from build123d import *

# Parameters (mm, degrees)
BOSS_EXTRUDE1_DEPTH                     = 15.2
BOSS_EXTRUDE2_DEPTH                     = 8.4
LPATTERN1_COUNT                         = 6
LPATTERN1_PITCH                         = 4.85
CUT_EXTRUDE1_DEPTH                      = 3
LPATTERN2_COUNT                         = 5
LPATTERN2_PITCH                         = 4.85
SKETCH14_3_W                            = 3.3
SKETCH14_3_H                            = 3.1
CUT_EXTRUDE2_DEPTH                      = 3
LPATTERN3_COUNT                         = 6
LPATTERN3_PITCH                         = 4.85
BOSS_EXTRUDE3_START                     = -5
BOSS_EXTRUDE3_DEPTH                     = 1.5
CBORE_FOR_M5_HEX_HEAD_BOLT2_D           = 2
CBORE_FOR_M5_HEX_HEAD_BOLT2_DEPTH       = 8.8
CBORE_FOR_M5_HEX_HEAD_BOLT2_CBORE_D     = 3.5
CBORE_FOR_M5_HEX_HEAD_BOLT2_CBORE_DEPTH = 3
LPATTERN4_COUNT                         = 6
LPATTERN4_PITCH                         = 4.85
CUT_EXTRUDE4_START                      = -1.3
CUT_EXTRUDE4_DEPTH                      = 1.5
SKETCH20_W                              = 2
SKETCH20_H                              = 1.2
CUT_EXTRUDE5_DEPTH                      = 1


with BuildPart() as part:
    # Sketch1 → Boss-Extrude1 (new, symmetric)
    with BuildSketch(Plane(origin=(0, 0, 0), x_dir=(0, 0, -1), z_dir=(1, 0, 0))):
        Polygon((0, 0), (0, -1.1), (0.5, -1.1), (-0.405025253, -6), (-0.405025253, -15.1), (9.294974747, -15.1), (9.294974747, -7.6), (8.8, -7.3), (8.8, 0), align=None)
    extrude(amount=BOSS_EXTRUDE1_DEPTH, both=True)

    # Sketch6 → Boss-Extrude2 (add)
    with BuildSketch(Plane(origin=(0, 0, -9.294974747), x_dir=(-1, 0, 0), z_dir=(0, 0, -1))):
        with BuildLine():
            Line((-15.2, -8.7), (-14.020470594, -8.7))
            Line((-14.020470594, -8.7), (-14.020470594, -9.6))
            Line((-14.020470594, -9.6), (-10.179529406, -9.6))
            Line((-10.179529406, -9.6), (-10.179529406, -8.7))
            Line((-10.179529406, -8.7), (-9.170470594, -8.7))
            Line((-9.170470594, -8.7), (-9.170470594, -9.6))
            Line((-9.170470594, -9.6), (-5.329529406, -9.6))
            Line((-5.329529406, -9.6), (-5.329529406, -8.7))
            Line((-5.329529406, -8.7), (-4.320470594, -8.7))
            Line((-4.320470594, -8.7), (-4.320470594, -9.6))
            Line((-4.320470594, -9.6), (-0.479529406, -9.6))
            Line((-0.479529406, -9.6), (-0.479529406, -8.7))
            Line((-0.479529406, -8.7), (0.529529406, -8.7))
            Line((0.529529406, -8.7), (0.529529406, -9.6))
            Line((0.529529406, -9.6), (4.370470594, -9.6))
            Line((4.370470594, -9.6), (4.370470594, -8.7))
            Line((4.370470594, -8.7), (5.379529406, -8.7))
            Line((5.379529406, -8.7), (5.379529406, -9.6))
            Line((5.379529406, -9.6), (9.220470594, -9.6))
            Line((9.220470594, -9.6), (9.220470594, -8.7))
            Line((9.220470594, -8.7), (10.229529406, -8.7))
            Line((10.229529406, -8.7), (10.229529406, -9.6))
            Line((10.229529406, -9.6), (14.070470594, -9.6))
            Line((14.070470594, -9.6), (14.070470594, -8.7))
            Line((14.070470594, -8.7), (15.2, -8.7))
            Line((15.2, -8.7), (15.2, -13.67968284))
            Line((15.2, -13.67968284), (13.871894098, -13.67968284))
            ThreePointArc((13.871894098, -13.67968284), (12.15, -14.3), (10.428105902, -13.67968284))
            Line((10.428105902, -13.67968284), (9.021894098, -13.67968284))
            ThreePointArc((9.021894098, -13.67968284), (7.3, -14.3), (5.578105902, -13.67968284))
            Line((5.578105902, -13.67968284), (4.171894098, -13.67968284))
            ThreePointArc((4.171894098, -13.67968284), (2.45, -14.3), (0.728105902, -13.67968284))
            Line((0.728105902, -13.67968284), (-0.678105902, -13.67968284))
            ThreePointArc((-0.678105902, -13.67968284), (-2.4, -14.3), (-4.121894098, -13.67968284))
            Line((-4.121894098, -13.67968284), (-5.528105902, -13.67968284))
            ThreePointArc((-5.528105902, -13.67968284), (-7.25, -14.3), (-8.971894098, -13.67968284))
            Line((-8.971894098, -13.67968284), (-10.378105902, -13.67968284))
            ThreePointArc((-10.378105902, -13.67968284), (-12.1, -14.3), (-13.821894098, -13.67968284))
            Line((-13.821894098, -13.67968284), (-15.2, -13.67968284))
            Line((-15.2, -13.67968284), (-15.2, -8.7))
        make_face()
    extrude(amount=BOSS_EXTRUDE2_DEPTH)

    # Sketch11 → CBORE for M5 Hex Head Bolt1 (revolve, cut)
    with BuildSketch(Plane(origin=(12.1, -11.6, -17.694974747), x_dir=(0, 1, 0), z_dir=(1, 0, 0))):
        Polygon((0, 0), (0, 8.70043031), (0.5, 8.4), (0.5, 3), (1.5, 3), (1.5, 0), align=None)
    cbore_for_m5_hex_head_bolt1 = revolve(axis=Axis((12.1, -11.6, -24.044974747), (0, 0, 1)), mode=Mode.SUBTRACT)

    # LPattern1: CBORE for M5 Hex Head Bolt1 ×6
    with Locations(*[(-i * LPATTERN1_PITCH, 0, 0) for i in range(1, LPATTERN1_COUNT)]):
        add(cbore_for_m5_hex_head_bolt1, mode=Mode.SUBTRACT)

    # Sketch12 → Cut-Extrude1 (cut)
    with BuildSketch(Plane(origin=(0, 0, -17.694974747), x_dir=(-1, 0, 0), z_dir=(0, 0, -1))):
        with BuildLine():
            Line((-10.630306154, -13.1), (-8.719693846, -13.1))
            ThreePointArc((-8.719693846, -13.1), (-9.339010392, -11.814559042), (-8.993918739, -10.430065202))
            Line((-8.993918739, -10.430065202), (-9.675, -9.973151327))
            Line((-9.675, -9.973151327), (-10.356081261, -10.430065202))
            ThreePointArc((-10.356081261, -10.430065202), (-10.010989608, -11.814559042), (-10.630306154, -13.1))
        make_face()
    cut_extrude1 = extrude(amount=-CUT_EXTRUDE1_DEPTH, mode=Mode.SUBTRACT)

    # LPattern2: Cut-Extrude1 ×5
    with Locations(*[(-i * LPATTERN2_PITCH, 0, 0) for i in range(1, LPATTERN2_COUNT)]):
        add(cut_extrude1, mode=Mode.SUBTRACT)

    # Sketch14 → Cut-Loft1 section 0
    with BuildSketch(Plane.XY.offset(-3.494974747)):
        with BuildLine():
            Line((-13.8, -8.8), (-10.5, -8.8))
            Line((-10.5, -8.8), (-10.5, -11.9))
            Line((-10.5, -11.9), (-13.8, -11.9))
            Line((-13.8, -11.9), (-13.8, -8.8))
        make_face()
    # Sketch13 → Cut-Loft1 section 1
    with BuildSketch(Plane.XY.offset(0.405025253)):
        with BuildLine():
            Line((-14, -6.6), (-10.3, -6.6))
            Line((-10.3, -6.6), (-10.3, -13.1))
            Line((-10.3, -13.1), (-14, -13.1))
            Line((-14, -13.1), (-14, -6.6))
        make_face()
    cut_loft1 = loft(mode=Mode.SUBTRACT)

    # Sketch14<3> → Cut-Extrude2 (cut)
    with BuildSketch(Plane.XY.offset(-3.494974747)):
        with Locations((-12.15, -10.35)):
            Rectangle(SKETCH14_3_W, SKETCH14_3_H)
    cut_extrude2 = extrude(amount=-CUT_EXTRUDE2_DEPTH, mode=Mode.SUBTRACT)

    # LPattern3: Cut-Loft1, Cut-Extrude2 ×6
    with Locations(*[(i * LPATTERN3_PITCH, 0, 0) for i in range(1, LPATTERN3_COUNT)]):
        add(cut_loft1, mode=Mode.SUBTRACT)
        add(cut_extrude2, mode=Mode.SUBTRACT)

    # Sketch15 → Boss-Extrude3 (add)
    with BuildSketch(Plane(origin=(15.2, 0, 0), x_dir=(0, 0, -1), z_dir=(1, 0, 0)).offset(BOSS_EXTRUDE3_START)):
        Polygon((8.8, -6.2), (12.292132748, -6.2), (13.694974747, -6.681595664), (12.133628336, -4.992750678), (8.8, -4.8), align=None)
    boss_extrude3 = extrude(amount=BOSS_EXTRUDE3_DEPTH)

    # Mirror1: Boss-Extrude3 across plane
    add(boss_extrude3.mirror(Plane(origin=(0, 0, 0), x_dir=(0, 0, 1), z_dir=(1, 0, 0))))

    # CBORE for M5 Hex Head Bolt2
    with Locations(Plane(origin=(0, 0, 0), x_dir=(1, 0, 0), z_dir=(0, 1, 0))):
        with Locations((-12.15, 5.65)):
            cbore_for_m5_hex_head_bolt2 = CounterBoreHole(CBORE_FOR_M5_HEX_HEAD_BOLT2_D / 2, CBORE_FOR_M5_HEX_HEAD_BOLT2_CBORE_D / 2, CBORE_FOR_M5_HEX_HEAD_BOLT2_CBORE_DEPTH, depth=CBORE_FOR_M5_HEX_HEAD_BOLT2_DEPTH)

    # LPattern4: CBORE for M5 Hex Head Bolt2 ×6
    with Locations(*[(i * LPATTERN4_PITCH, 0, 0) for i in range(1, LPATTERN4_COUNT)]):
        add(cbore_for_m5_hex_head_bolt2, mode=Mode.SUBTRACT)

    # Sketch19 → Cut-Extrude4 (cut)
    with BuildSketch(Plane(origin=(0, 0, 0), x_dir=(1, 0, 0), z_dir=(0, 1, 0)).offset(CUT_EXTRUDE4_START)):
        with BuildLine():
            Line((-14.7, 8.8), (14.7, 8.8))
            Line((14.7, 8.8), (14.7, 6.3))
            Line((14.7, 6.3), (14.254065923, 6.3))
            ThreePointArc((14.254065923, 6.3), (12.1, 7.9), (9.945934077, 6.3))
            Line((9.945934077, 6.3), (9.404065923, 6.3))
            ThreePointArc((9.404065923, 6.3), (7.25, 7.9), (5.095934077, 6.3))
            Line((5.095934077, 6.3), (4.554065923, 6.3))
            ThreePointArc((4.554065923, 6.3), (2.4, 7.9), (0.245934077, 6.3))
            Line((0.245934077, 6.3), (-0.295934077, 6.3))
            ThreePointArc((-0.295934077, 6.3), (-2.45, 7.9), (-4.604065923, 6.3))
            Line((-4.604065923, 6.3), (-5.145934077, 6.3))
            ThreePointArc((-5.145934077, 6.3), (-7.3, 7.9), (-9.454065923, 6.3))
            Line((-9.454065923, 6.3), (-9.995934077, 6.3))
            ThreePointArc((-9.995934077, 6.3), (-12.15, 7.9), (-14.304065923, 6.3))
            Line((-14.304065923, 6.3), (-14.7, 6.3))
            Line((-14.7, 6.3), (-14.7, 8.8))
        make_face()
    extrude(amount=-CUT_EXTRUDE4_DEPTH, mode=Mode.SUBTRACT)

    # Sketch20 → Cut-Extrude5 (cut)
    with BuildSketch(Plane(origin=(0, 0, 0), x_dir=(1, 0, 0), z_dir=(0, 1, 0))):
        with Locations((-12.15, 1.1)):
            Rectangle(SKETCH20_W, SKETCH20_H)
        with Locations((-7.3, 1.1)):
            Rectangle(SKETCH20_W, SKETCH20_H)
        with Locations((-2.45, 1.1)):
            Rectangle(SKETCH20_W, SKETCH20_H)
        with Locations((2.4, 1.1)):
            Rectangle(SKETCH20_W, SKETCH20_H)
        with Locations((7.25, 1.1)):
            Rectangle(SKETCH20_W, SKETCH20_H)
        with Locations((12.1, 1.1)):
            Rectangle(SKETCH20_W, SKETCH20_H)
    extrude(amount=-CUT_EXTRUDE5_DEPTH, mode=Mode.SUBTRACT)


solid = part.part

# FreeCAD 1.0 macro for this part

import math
import FreeCAD as App
import Part
import Sketcher

V = App.Vector
Q = App.Units.Quantity

doc = App.newDocument("Part")
body = doc.addObject("PartDesign::Body", "Body")

# Sketch on YZ plane
sketch1 = doc.addObject("Sketcher::SketchObject", "Sketch")
body.addObject(sketch1)
sketch1.AttachmentSupport = (doc.YZ_Plane, [""])
sketch1.MapMode = "FlatFace"
sketch1.addGeometry([
    Part.LineSegment(V(0, 0, 0), V(-1.1, 0, 0)),  # 0
    Part.LineSegment(V(-1.1, 0, 0), V(-1.1, -0.5, 0)),  # 1
    Part.LineSegment(V(-1.1, -0.5, 0), V(-6, 0.4, 0)),  # 2
    Part.LineSegment(V(-6, 0.4, 0), V(-15.1, 0.4, 0)),  # 3
    Part.LineSegment(V(-15.1, 0.4, 0), V(-15.1, -9.3, 0)),  # 4
    Part.LineSegment(V(-15.1, -9.3, 0), V(-7.6, -9.3, 0)),  # 5
    Part.LineSegment(V(-7.6, -9.3, 0), V(-7.3, -8.8, 0)),  # 6
    Part.LineSegment(V(-7.3, -8.8, 0), V(0, -8.8, 0)),  # 7
    Part.LineSegment(V(0, -8.8, 0), V(0, 0, 0)),  # 8
], False)
sketch1.addConstraint([
    Sketcher.Constraint("Coincident", 0, 2, 1, 1),
    Sketcher.Constraint("Coincident", 1, 2, 2, 1),
    Sketcher.Constraint("Coincident", 2, 2, 3, 1),
    Sketcher.Constraint("Coincident", 3, 2, 4, 1),
    Sketcher.Constraint("Coincident", 4, 2, 5, 1),
    Sketcher.Constraint("Coincident", 5, 2, 6, 1),
    Sketcher.Constraint("Coincident", 6, 2, 7, 1),
    Sketcher.Constraint("Coincident", 7, 2, 8, 1),
    Sketcher.Constraint("Coincident", 8, 2, 0, 1),
    Sketcher.Constraint("Horizontal", 0),
    Sketcher.Constraint("Vertical", 1),
    Sketcher.Constraint("Horizontal", 3),
    Sketcher.Constraint("Vertical", 4),
    Sketcher.Constraint("Horizontal", 5),
    Sketcher.Constraint("Horizontal", 7),
    Sketcher.Constraint("Vertical", 8),
    Sketcher.Constraint("Coincident", 8, 2, -1, 1),
    Sketcher.Constraint("DistanceX", 0, 2, 0, 1, 1.1),
    Sketcher.Constraint("DistanceX", 3, 2, 3, 1, 9.1),
    Sketcher.Constraint("DistanceX", 5, 1, 5, 2, 7.5),
    Sketcher.Constraint("DistanceX", 7, 1, 7, 2, 7.3),
    Sketcher.Constraint("DistanceY", 1, 2, 1, 1, 0.5),
    Sketcher.Constraint("DistanceY", 4, 2, 4, 1, 9.7),
    Sketcher.Constraint("DistanceY", 8, 1, 8, 2, 8.8),
    Sketcher.Constraint("DistanceX", 2, 2, -1, 1, 6.0),
    Sketcher.Constraint("Distance", 6, 0.578792),
])
pad1 = doc.addObject("PartDesign::Pad", "Pad")
body.addObject(pad1)
pad1.Profile = sketch1
pad1.Length = 30.4
pad1.Midplane = True

# Sketch on XY plane
sketch2 = doc.addObject("Sketcher::SketchObject", "Sketch001")
body.addObject(sketch2)
sketch2.AttachmentSupport = (doc.XY_Plane, [""])
sketch2.MapMode = "FlatFace"
sketch2.AttachmentOffset = App.Placement(V(0, 0, -9.294975), App.Rotation())
sketch2.addGeometry([
    Part.LineSegment(V(14, -8.7, 0), V(15.2, -8.7, 0)),  # 0
    Part.LineSegment(V(15.2, -8.7, 0), V(15.2, -13.7, 0)),  # 1
    Part.LineSegment(V(15.2, -13.7, 0), V(13.8, -13.7, 0)),  # 2
    Part.ArcOfCircle(Part.Circle(V(12.1, -11.6, 0), V(0, 0, 1), 2.7), math.radians(-130), math.radians(-50)),  # 3
    Part.LineSegment(V(10.4, -13.7, 0), V(9, -13.7, 0)),  # 4
    Part.ArcOfCircle(Part.Circle(V(7.2, -11.6, 0), V(0, 0, 1), 2.7), math.radians(-130), math.radians(-50)),  # 5
    Part.LineSegment(V(5.5, -13.7, 0), V(4.1, -13.7, 0)),  # 6
    Part.ArcOfCircle(Part.Circle(V(2.4, -11.6, 0), V(0, 0, 1), 2.7), math.radians(-130), math.radians(-50)),  # 7
    Part.LineSegment(V(0.7, -13.7, 0), V(-0.7, -13.7, 0)),  # 8
    Part.ArcOfCircle(Part.Circle(V(-2.5, -11.6, 0), V(0, 0, 1), 2.7), math.radians(-130), math.radians(-50)),  # 9
    Part.LineSegment(V(-4.2, -13.7, 0), V(-5.6, -13.7, 0)),  # 10
    Part.ArcOfCircle(Part.Circle(V(-7.3, -11.6, 0), V(0, 0, 1), 2.7), math.radians(-130), math.radians(-50)),  # 11
    Part.LineSegment(V(-9, -13.7, 0), V(-10.4, -13.7, 0)),  # 12
    Part.ArcOfCircle(Part.Circle(V(-12.2, -11.6, 0), V(0, 0, 1), 2.7), math.radians(-130), math.radians(-50)),  # 13
    Part.LineSegment(V(-13.9, -13.7, 0), V(-15.2, -13.7, 0)),  # 14
    Part.LineSegment(V(-15.2, -13.7, 0), V(-15.2, -8.7, 0)),  # 15
    Part.LineSegment(V(-15.2, -8.7, 0), V(-14.1, -8.7, 0)),  # 16
    Part.LineSegment(V(-14.1, -8.7, 0), V(-14.1, -9.6, 0)),  # 17
    Part.LineSegment(V(-14.1, -9.6, 0), V(-10.2, -9.6, 0)),  # 18
    Part.LineSegment(V(-10.2, -9.6, 0), V(-10.2, -8.7, 0)),  # 19
    Part.LineSegment(V(-10.2, -8.7, 0), V(-9.2, -8.7, 0)),  # 20
    Part.LineSegment(V(-9.2, -8.7, 0), V(-9.2, -9.6, 0)),  # 21
    Part.LineSegment(V(-9.2, -9.6, 0), V(-5.4, -9.6, 0)),  # 22
    Part.LineSegment(V(-5.4, -9.6, 0), V(-5.4, -8.7, 0)),  # 23
    Part.LineSegment(V(-5.4, -8.7, 0), V(-4.4, -8.7, 0)),  # 24
    Part.LineSegment(V(-4.4, -8.7, 0), V(-4.4, -9.6, 0)),  # 25
    Part.LineSegment(V(-4.4, -9.6, 0), V(-0.5, -9.6, 0)),  # 26
    Part.LineSegment(V(-0.5, -9.6, 0), V(-0.5, -8.7, 0)),  # 27
    Part.LineSegment(V(-0.5, -8.7, 0), V(0.5, -8.7, 0)),  # 28
    Part.LineSegment(V(0.5, -8.7, 0), V(0.5, -9.6, 0)),  # 29
    Part.LineSegment(V(0.5, -9.6, 0), V(4.3, -9.6, 0)),  # 30
    Part.LineSegment(V(4.3, -9.6, 0), V(4.3, -8.7, 0)),  # 31
    Part.LineSegment(V(4.3, -8.7, 0), V(5.3, -8.7, 0)),  # 32
    Part.LineSegment(V(5.3, -8.7, 0), V(5.3, -9.6, 0)),  # 33
    Part.LineSegment(V(5.3, -9.6, 0), V(9.2, -9.6, 0)),  # 34
    Part.LineSegment(V(9.2, -9.6, 0), V(9.2, -8.7, 0)),  # 35
    Part.LineSegment(V(9.2, -8.7, 0), V(10.2, -8.7, 0)),  # 36
    Part.LineSegment(V(10.2, -8.7, 0), V(10.2, -9.6, 0)),  # 37
    Part.LineSegment(V(10.2, -9.6, 0), V(14, -9.6, 0)),  # 38
    Part.LineSegment(V(14, -9.6, 0), V(14, -8.7, 0)),  # 39
], False)
sketch2.addConstraint([
    Sketcher.Constraint("Coincident", 0, 2, 1, 1),
    Sketcher.Constraint("Coincident", 1, 2, 2, 1),
    Sketcher.Constraint("Coincident", 2, 2, 3, 2),
    Sketcher.Constraint("Coincident", 3, 1, 4, 1),
    Sketcher.Constraint("Coincident", 4, 2, 5, 2),
    Sketcher.Constraint("Coincident", 5, 1, 6, 1),
    Sketcher.Constraint("Coincident", 6, 2, 7, 2),
    Sketcher.Constraint("Coincident", 7, 1, 8, 1),
    Sketcher.Constraint("Coincident", 8, 2, 9, 2),
    Sketcher.Constraint("Coincident", 9, 1, 10, 1),
    Sketcher.Constraint("Coincident", 10, 2, 11, 2),
    Sketcher.Constraint("Coincident", 11, 1, 12, 1),
    Sketcher.Constraint("Coincident", 12, 2, 13, 2),
    Sketcher.Constraint("Coincident", 13, 1, 14, 1),
    Sketcher.Constraint("Coincident", 14, 2, 15, 1),
    Sketcher.Constraint("Coincident", 15, 2, 16, 1),
    Sketcher.Constraint("Coincident", 16, 2, 17, 1),
    Sketcher.Constraint("Coincident", 17, 2, 18, 1),
    Sketcher.Constraint("Coincident", 18, 2, 19, 1),
    Sketcher.Constraint("Coincident", 19, 2, 20, 1),
    Sketcher.Constraint("Coincident", 20, 2, 21, 1),
    Sketcher.Constraint("Coincident", 21, 2, 22, 1),
    Sketcher.Constraint("Coincident", 22, 2, 23, 1),
    Sketcher.Constraint("Coincident", 23, 2, 24, 1),
    Sketcher.Constraint("Coincident", 24, 2, 25, 1),
    Sketcher.Constraint("Coincident", 25, 2, 26, 1),
    Sketcher.Constraint("Coincident", 26, 2, 27, 1),
    Sketcher.Constraint("Coincident", 27, 2, 28, 1),
    Sketcher.Constraint("Coincident", 28, 2, 29, 1),
    Sketcher.Constraint("Coincident", 29, 2, 30, 1),
    Sketcher.Constraint("Coincident", 30, 2, 31, 1),
    Sketcher.Constraint("Coincident", 31, 2, 32, 1),
    Sketcher.Constraint("Coincident", 32, 2, 33, 1),
    Sketcher.Constraint("Coincident", 33, 2, 34, 1),
    Sketcher.Constraint("Coincident", 34, 2, 35, 1),
    Sketcher.Constraint("Coincident", 35, 2, 36, 1),
    Sketcher.Constraint("Coincident", 36, 2, 37, 1),
    Sketcher.Constraint("Coincident", 37, 2, 38, 1),
    Sketcher.Constraint("Coincident", 38, 2, 39, 1),
    Sketcher.Constraint("Coincident", 39, 2, 0, 1),
    Sketcher.Constraint("Horizontal", 0),
    Sketcher.Constraint("Vertical", 1),
    Sketcher.Constraint("Horizontal", 2),
    Sketcher.Constraint("Horizontal", 4),
    Sketcher.Constraint("Horizontal", 6),
    Sketcher.Constraint("Horizontal", 8),
    Sketcher.Constraint("Horizontal", 10),
    Sketcher.Constraint("Horizontal", 12),
    Sketcher.Constraint("Horizontal", 14),
    Sketcher.Constraint("Vertical", 15),
    Sketcher.Constraint("Horizontal", 16),
    Sketcher.Constraint("Vertical", 17),
    Sketcher.Constraint("Horizontal", 18),
    Sketcher.Constraint("Vertical", 19),
    Sketcher.Constraint("Horizontal", 20),
    Sketcher.Constraint("Vertical", 21),
    Sketcher.Constraint("Horizontal", 22),
    Sketcher.Constraint("Vertical", 23),
    Sketcher.Constraint("Horizontal", 24),
    Sketcher.Constraint("Vertical", 25),
    Sketcher.Constraint("Horizontal", 26),
    Sketcher.Constraint("Vertical", 27),
    Sketcher.Constraint("Horizontal", 28),
    Sketcher.Constraint("Vertical", 29),
    Sketcher.Constraint("Horizontal", 30),
    Sketcher.Constraint("Vertical", 31),
    Sketcher.Constraint("Horizontal", 32),
    Sketcher.Constraint("Vertical", 33),
    Sketcher.Constraint("Horizontal", 34),
    Sketcher.Constraint("Vertical", 35),
    Sketcher.Constraint("Horizontal", 36),
    Sketcher.Constraint("Vertical", 37),
    Sketcher.Constraint("Horizontal", 38),
    Sketcher.Constraint("Vertical", 39),
    Sketcher.Constraint("Equal", 3, 5),
    Sketcher.Constraint("Equal", 5, 7),
    Sketcher.Constraint("Equal", 7, 9),
    Sketcher.Constraint("Equal", 9, 11),
    Sketcher.Constraint("Equal", 11, 13),
    Sketcher.Constraint("Symmetric", 1, 2, 14, 2, -2),
    Sketcher.Constraint("Horizontal", 3, 3, 5, 3),
    Sketcher.Constraint("Horizontal", 5, 3, 7, 3),
    Sketcher.Constraint("Horizontal", 7, 3, 9, 3),
    Sketcher.Constraint("Horizontal", 9, 3, 11, 3),
    Sketcher.Constraint("Horizontal", 11, 3, 13, 3),
    Sketcher.Constraint("Horizontal", 2, 2, 3, 1),
    Sketcher.Constraint("Horizontal", 4, 2, 5, 1),
    Sketcher.Constraint("Horizontal", 6, 2, 7, 1),
    Sketcher.Constraint("Horizontal", 8, 2, 9, 1),
    Sketcher.Constraint("Horizontal", 10, 2, 11, 1),
    Sketcher.Constraint("Horizontal", 0, 2, 15, 2),
    Sketcher.Constraint("Horizontal", 16, 2, 19, 2),
    Sketcher.Constraint("Horizontal", 18, 2, 21, 2),
    Sketcher.Constraint("Horizontal", 20, 2, 23, 2),
    Sketcher.Constraint("Horizontal", 22, 2, 25, 2),
    Sketcher.Constraint("Horizontal", 24, 2, 27, 2),
    Sketcher.Constraint("Horizontal", 26, 2, 29, 2),
    Sketcher.Constraint("Horizontal", 28, 2, 31, 2),
    Sketcher.Constraint("Horizontal", 30, 2, 33, 2),
    Sketcher.Constraint("Horizontal", 32, 2, 35, 2),
    Sketcher.Constraint("Horizontal", 34, 2, 37, 2),
    Sketcher.Constraint("Equal", 4, 6),
    Sketcher.Constraint("Equal", 6, 8),
    Sketcher.Constraint("Equal", 8, 10),
    Sketcher.Constraint("Equal", 10, 12),
    Sketcher.Constraint("Equal", 18, 22),
    Sketcher.Constraint("Equal", 20, 24),
    Sketcher.Constraint("Equal", 22, 26),
    Sketcher.Constraint("Equal", 24, 28),
    Sketcher.Constraint("Equal", 26, 30),
    Sketcher.Constraint("Equal", 28, 32),
    Sketcher.Constraint("Equal", 30, 34),
    Sketcher.Constraint("Equal", 32, 36),
    Sketcher.Constraint("Equal", 34, 38),
    Sketcher.Constraint("Radius", 3, 2.7),
    Sketcher.Constraint("DistanceY", 17, 2, 17, 1, 0.9),
    Sketcher.Constraint("DistanceY", 13, 3, 17, 2, 2.0),
    Sketcher.Constraint("DistanceX", -1, 1, 3, 3, 12.1),
    Sketcher.Constraint("DistanceY", 3, 3, -1, 1, 11.6),
    Sketcher.Constraint("DistanceX", -1, 1, 7, 3, 2.4),
    Sketcher.Constraint("DistanceX", -1, 1, 0, 2, 15.2),
    Sketcher.Constraint("DistanceX", 16, 2, 20, 2, 4.85),
    Sketcher.Constraint("DistanceX", 0, 1, 0, 2, 1.179529),
    Sketcher.Constraint("DistanceX", 4, 2, 4, 1, 1.406212),
    Sketcher.Constraint("DistanceX", 16, 1, 16, 2, 1.129529),
])
pad2 = doc.addObject("PartDesign::Pad", "Pad001")
body.addObject(pad2)
pad2.Profile = sketch2
pad2.Length = 8.4
pad2.Reversed = True

# Sketch on YZ plane
sketch3 = doc.addObject("Sketcher::SketchObject", "Sketch002")
body.addObject(sketch3)
sketch3.AttachmentSupport = (doc.YZ_Plane, [""])
sketch3.MapMode = "FlatFace"
sketch3.AttachmentOffset = App.Placement(V(0, 0, 12.1), App.Rotation())
sketch3.addGeometry([
    Part.LineSegment(V(-11.6, -9, 0), V(-11.6, -17.7, 0)),  # 0
    Part.LineSegment(V(-11.6, -17.7, 0), V(-10.1, -17.7, 0)),  # 1
    Part.LineSegment(V(-10.1, -17.7, 0), V(-10.1, -14.7, 0)),  # 2
    Part.LineSegment(V(-10.1, -14.7, 0), V(-11.1, -14.7, 0)),  # 3
    Part.LineSegment(V(-11.1, -14.7, 0), V(-11.1, -9.3, 0)),  # 4
    Part.LineSegment(V(-11.1, -9.3, 0), V(-11.6, -9, 0)),  # 5
], False)
sketch3.addGeometry(Part.LineSegment(V(-11.6, -17.7, 0), V(-11.6, -9, 0)), True)  # axis
sketch3.addConstraint([
    Sketcher.Constraint("Coincident", 0, 2, 1, 1),
    Sketcher.Constraint("Coincident", 1, 2, 2, 1),
    Sketcher.Constraint("Coincident", 2, 2, 3, 1),
    Sketcher.Constraint("Coincident", 3, 2, 4, 1),
    Sketcher.Constraint("Coincident", 4, 2, 5, 1),
    Sketcher.Constraint("Coincident", 5, 2, 0, 1),
    Sketcher.Constraint("Vertical", 0),
    Sketcher.Constraint("Horizontal", 1),
    Sketcher.Constraint("Vertical", 2),
    Sketcher.Constraint("Horizontal", 3),
    Sketcher.Constraint("Vertical", 4),
    Sketcher.Constraint("Vertical", 6),
    Sketcher.Constraint("Coincident", 6, 1, 0, 2),
    Sketcher.Constraint("Equal", 0, 6),
    Sketcher.Constraint("DistanceX", 3, 2, 3, 1, 1.0),
    Sketcher.Constraint("DistanceY", 2, 1, 2, 2, 3.0),
    Sketcher.Constraint("Angle", 5, Q("149 deg")),
    Sketcher.Constraint("DistanceX", 1, 1, 1, 2, 1.5),
    Sketcher.Constraint("DistanceY", 4, 1, 4, 2, 5.4),
    Sketcher.Constraint("DistanceX", 0, 2, -1, 1, 11.6),
    Sketcher.Constraint("DistanceY", 0, 2, -1, 1, 17.694975),
])
groove = doc.addObject("PartDesign::Groove", "Groove")
body.addObject(groove)
groove.Profile = sketch3
groove.ReferenceAxis = (sketch3, ["Axis0"])
groove.Angle = 360
doc.recompute()

linearpattern = doc.addObject("PartDesign::LinearPattern", "LinearPattern")
body.addObject(linearpattern)
linearpattern.Originals = [groove]
linearpattern.Direction = (doc.X_Axis, [""])
linearpattern.Mode = "offset"
linearpattern.Offset = 4.85
linearpattern.Occurrences = 6
linearpattern.Reversed = True
body.Tip = linearpattern

# Sketch on XY plane
sketch4 = doc.addObject("Sketcher::SketchObject", "Sketch003")
body.addObject(sketch4)
sketch4.AttachmentSupport = (doc.XY_Plane, [""])
sketch4.MapMode = "FlatFace"
sketch4.AttachmentOffset = App.Placement(V(0, 0, -17.694975), App.Rotation())
sketch4.addGeometry([
    Part.LineSegment(V(10.6, -13.1, 0), V(8.7, -13.1, 0)),  # 0
    Part.ArcOfCircle(Part.Circle(V(7.2, -11.6, 0), V(0, 0, 1), 2.1), math.radians(-46), math.radians(34)),  # 1
    Part.LineSegment(V(9, -10.4, 0), V(9.7, -10, 0)),  # 2
    Part.LineSegment(V(9.7, -10, 0), V(10.4, -10.4, 0)),  # 3
    Part.ArcOfCircle(Part.Circle(V(12.1, -11.6, 0), V(0, 0, 1), 2.1), math.radians(146), math.radians(226)),  # 4
], False)
sketch4.addConstraint([
    Sketcher.Constraint("Coincident", 0, 2, 1, 1),
    Sketcher.Constraint("Coincident", 1, 2, 2, 1),
    Sketcher.Constraint("Coincident", 2, 2, 3, 1),
    Sketcher.Constraint("Coincident", 3, 2, 4, 1),
    Sketcher.Constraint("Coincident", 4, 2, 0, 1),
    Sketcher.Constraint("Horizontal", 0),
    Sketcher.Constraint("Equal", 1, 4),
    Sketcher.Constraint("Horizontal", 1, 3, 4, 3),
    Sketcher.Constraint("Horizontal", 1, 2, 3, 2),
    Sketcher.Constraint("Equal", 2, 3),
    Sketcher.Constraint("Radius", 1, 2.1),
    Sketcher.Constraint("DistanceY", 1, 3, -1, 1, 11.6),
    Sketcher.Constraint("DistanceX", -1, 1, 4, 3, 12.1),
    Sketcher.Constraint("DistanceY", 0, 2, -1, 1, 13.1),
    Sketcher.Constraint("DistanceX", -1, 1, 1, 3, 7.25),
    Sketcher.Constraint("DistanceX", -1, 1, 1, 2, 8.993919),
    Sketcher.Constraint("DistanceY", 2, 2, -1, 1, 9.973151),
])
pocket1 = doc.addObject("PartDesign::Pocket", "Pocket")
body.addObject(pocket1)
pocket1.Profile = sketch4
pocket1.Length = 3
pocket1.Reversed = True
doc.recompute()

linearpattern2 = doc.addObject("PartDesign::LinearPattern", "LinearPattern001")
body.addObject(linearpattern2)
linearpattern2.Originals = [pocket1]
linearpattern2.Direction = (doc.X_Axis, [""])
linearpattern2.Mode = "offset"
linearpattern2.Offset = 4.85
linearpattern2.Occurrences = 5
linearpattern2.Reversed = True
body.Tip = linearpattern2

# Sketch on XY plane
sketch5 = doc.addObject("Sketcher::SketchObject", "Sketch004")
body.addObject(sketch5)
sketch5.AttachmentSupport = (doc.XY_Plane, [""])
sketch5.MapMode = "FlatFace"
sketch5.AttachmentOffset = App.Placement(V(0, 0, -3.494975), App.Rotation())
sketch5.addGeometry([
    Part.LineSegment(V(-10.5, -8.8, 0), V(-13.8, -8.8, 0)),
    Part.LineSegment(V(-13.8, -8.8, 0), V(-13.8, -11.9, 0)),
    Part.LineSegment(V(-13.8, -11.9, 0), V(-10.5, -11.9, 0)),
    Part.LineSegment(V(-10.5, -11.9, 0), V(-10.5, -8.8, 0)),
], False)
sketch5.addConstraint([
    Sketcher.Constraint("Coincident", 0, 2, 1, 1),
    Sketcher.Constraint("Coincident", 1, 2, 2, 1),
    Sketcher.Constraint("Coincident", 2, 2, 3, 1),
    Sketcher.Constraint("Coincident", 3, 2, 0, 1),
    Sketcher.Constraint("Horizontal", 0),
    Sketcher.Constraint("Vertical", 1),
    Sketcher.Constraint("Horizontal", 2),
    Sketcher.Constraint("Vertical", 3),
    Sketcher.Constraint("DistanceX", 0, 2, 0, 1, 3.3),
    Sketcher.Constraint("DistanceY", 1, 2, 1, 1, 3.1),
    Sketcher.Constraint("DistanceX", 0, 2, -1, 1, 13.8),
    Sketcher.Constraint("DistanceY", 0, 2, -1, 1, 8.8),
])

# Sketch on XY plane
sketch6 = doc.addObject("Sketcher::SketchObject", "Sketch005")
body.addObject(sketch6)
sketch6.AttachmentSupport = (doc.XY_Plane, [""])
sketch6.MapMode = "FlatFace"
sketch6.AttachmentOffset = App.Placement(V(0, 0, 0.405025), App.Rotation())
sketch6.addGeometry([
    Part.LineSegment(V(-10.3, -6.6, 0), V(-14, -6.6, 0)),
    Part.LineSegment(V(-14, -6.6, 0), V(-14, -13.1, 0)),
    Part.LineSegment(V(-14, -13.1, 0), V(-10.3, -13.1, 0)),
    Part.LineSegment(V(-10.3, -13.1, 0), V(-10.3, -6.6, 0)),
], False)
sketch6.addConstraint([
    Sketcher.Constraint("Coincident", 0, 2, 1, 1),
    Sketcher.Constraint("Coincident", 1, 2, 2, 1),
    Sketcher.Constraint("Coincident", 2, 2, 3, 1),
    Sketcher.Constraint("Coincident", 3, 2, 0, 1),
    Sketcher.Constraint("Horizontal", 0),
    Sketcher.Constraint("Vertical", 1),
    Sketcher.Constraint("Horizontal", 2),
    Sketcher.Constraint("Vertical", 3),
    Sketcher.Constraint("DistanceX", 0, 2, 0, 1, 3.7),
    Sketcher.Constraint("DistanceY", 1, 2, 1, 1, 6.5),
    Sketcher.Constraint("DistanceX", 0, 2, -1, 1, 14.0),
    Sketcher.Constraint("DistanceY", 0, 2, -1, 1, 6.6),
])

subtractiveloft = doc.addObject("PartDesign::SubtractiveLoft", "SubtractiveLoft")
body.addObject(subtractiveloft)
subtractiveloft.Profile = sketch5
subtractiveloft.Sections = [sketch6]

# Sketch on XY plane
sketch7 = doc.addObject("Sketcher::SketchObject", "Sketch006")
body.addObject(sketch7)
sketch7.AttachmentSupport = (doc.XY_Plane, [""])
sketch7.MapMode = "FlatFace"
sketch7.AttachmentOffset = App.Placement(V(0, 0, -3.494975), App.Rotation())
sketch7.addGeometry([
    Part.LineSegment(V(-13.8, -8.8, 0), V(-13.8, -11.9, 0)),
    Part.LineSegment(V(-13.8, -11.9, 0), V(-10.5, -11.9, 0)),
    Part.LineSegment(V(-10.5, -11.9, 0), V(-10.5, -8.8, 0)),
    Part.LineSegment(V(-10.5, -8.8, 0), V(-13.8, -8.8, 0)),
], False)
sketch7.addConstraint([
    Sketcher.Constraint("Coincident", 0, 2, 1, 1),
    Sketcher.Constraint("Coincident", 1, 2, 2, 1),
    Sketcher.Constraint("Coincident", 2, 2, 3, 1),
    Sketcher.Constraint("Coincident", 3, 2, 0, 1),
    Sketcher.Constraint("Vertical", 0),
    Sketcher.Constraint("Horizontal", 1),
    Sketcher.Constraint("Vertical", 2),
    Sketcher.Constraint("Horizontal", 3),
    Sketcher.Constraint("DistanceX", 1, 1, 1, 2, 3.3),
    Sketcher.Constraint("DistanceY", 0, 2, 0, 1, 3.1),
    Sketcher.Constraint("DistanceX", 0, 2, -1, 1, 13.8),
    Sketcher.Constraint("DistanceY", 0, 2, -1, 1, 11.9),
])
pocket2 = doc.addObject("PartDesign::Pocket", "Pocket001")
body.addObject(pocket2)
pocket2.Profile = sketch7
pocket2.Length = 3
doc.recompute()

linearpattern3 = doc.addObject("PartDesign::LinearPattern", "LinearPattern002")
body.addObject(linearpattern3)
linearpattern3.Originals = [subtractiveloft, pocket2]
linearpattern3.Direction = (doc.X_Axis, [""])
linearpattern3.Mode = "offset"
linearpattern3.Offset = 4.85
linearpattern3.Occurrences = 6
body.Tip = linearpattern3

# Sketch on YZ plane
sketch8 = doc.addObject("Sketcher::SketchObject", "Sketch007")
body.addObject(sketch8)
sketch8.AttachmentSupport = (doc.YZ_Plane, [""])
sketch8.MapMode = "FlatFace"
sketch8.AttachmentOffset = App.Placement(V(0, 0, 10.2), App.Rotation())
sketch8.addGeometry([
    Part.LineSegment(V(-6.2, -8.8, 0), V(-6.2, -12.3, 0)),  # 0
    Part.LineSegment(V(-6.2, -12.3, 0), V(-6.7, -13.7, 0)),  # 1
    Part.LineSegment(V(-6.7, -13.7, 0), V(-5, -12.1, 0)),  # 2
    Part.LineSegment(V(-5, -12.1, 0), V(-4.8, -8.8, 0)),  # 3
    Part.LineSegment(V(-4.8, -8.8, 0), V(-6.2, -8.8, 0)),  # 4
], False)
sketch8.addConstraint([
    Sketcher.Constraint("Coincident", 0, 2, 1, 1),
    Sketcher.Constraint("Coincident", 1, 2, 2, 1),
    Sketcher.Constraint("Coincident", 2, 2, 3, 1),
    Sketcher.Constraint("Coincident", 3, 2, 4, 1),
    Sketcher.Constraint("Coincident", 4, 2, 0, 1),
    Sketcher.Constraint("Vertical", 0),
    Sketcher.Constraint("Horizontal", 4),
    Sketcher.Constraint("DistanceX", 4, 2, 4, 1, 1.4),
    Sketcher.Constraint("Distance", 2, 2.3),
    Sketcher.Constraint("DistanceX", 0, 2, -1, 1, 6.2),
    Sketcher.Constraint("DistanceY", 3, 2, -1, 1, 8.8),
    Sketcher.Constraint("DistanceY", 0, 2, 0, 1, 3.492133),
    Sketcher.Constraint("DistanceX", 2, 2, -1, 1, 4.992751),
    Sketcher.Constraint("DistanceY", 2, 2, -1, 1, 12.133628),
    Sketcher.Constraint("DistanceY", 1, 2, 0, 2, 1.402842),
])
pad3 = doc.addObject("PartDesign::Pad", "Pad002")
body.addObject(pad3)
pad3.Profile = sketch8
pad3.Length = 1.5
doc.recompute()

mirrored = doc.addObject("PartDesign::Mirrored", "Mirrored")
body.addObject(mirrored)
mirrored.Originals = [pad3]
mirrored.MirrorPlane = (doc.YZ_Plane, [""])
body.Tip = mirrored

# Sketch on XZ plane
sketch9 = doc.addObject("Sketcher::SketchObject", "Sketch008")
body.addObject(sketch9)
sketch9.AttachmentSupport = (doc.XZ_Plane, [""])
sketch9.MapMode = "FlatFace"
sketch9.addGeometry(Part.Circle(V(-12.2, -5.7, 0), V(0, 0, 1), 1), False)
sketch9.addConstraint([
    Sketcher.Constraint("Diameter", 0, 2.0),
    Sketcher.Constraint("DistanceX", 0, 3, -1, 1, 12.15),
    Sketcher.Constraint("DistanceY", 0, 3, -1, 1, 5.65),
])
doc.recompute()
hole = doc.addObject("PartDesign::Hole", "Hole")
body.addObject(hole)
hole.Profile = sketch9
hole.ThreadType = "None"
hole.Diameter = 2
hole.DepthType = "Dimension"
hole.Depth = 8.8
hole.DrillPoint = "Flat"
hole.HoleCutType = "Counterbore"
hole.HoleCutDiameter = 3.5
hole.HoleCutDepth = 3
hole.Reversed = True
doc.recompute()

linearpattern4 = doc.addObject("PartDesign::LinearPattern", "LinearPattern003")
body.addObject(linearpattern4)
linearpattern4.Originals = [hole]
linearpattern4.Direction = (doc.X_Axis, [""])
linearpattern4.Mode = "offset"
linearpattern4.Offset = 4.85
linearpattern4.Occurrences = 6
body.Tip = linearpattern4

# Sketch on XZ plane
sketch10 = doc.addObject("Sketcher::SketchObject", "Sketch009")
body.addObject(sketch10)
sketch10.AttachmentSupport = (doc.XZ_Plane, [""])
sketch10.MapMode = "FlatFace"
sketch10.AttachmentOffset = App.Placement(V(0, 0, 1.3), App.Rotation())
sketch10.addGeometry([
    Part.LineSegment(V(14.7, -8.8, 0), V(-14.7, -8.8, 0)),  # 0
    Part.LineSegment(V(-14.7, -8.8, 0), V(-14.7, -6.3, 0)),  # 1
    Part.LineSegment(V(-14.7, -6.3, 0), V(-14.3, -6.3, 0)),  # 2
    Part.ArcOfCircle(Part.Circle(V(-12.15, -5.65, 0), V(0, 0, 1), 2.25), math.radians(-163), math.radians(-17)),  # 3
    Part.LineSegment(V(-10, -6.3, 0), V(-9.45, -6.3, 0)),  # 4
    Part.ArcOfCircle(Part.Circle(V(-7.3, -5.65, 0), V(0, 0, 1), 2.25), math.radians(-163), math.radians(-17)),  # 5
    Part.LineSegment(V(-5.15, -6.3, 0), V(-4.6, -6.3, 0)),  # 6
    Part.ArcOfCircle(Part.Circle(V(-2.45, -5.65, 0), V(0, 0, 1), 2.25), math.radians(-163), math.radians(-17)),  # 7
    Part.LineSegment(V(-0.3, -6.3, 0), V(0.25, -6.3, 0)),  # 8
    Part.ArcOfCircle(Part.Circle(V(2.4, -5.65, 0), V(0, 0, 1), 2.25), math.radians(-163), math.radians(-17)),  # 9
    Part.LineSegment(V(4.55, -6.3, 0), V(5.1, -6.3, 0)),  # 10
    Part.ArcOfCircle(Part.Circle(V(7.25, -5.65, 0), V(0, 0, 1), 2.25), math.radians(-163), math.radians(-17)),  # 11
    Part.LineSegment(V(9.4, -6.3, 0), V(9.95, -6.3, 0)),  # 12
    Part.ArcOfCircle(Part.Circle(V(12.1, -5.65, 0), V(0, 0, 1), 2.25), math.radians(-163), math.radians(-17)),  # 13
    Part.LineSegment(V(14.25, -6.3, 0), V(14.7, -6.3, 0)),  # 14
    Part.LineSegment(V(14.7, -6.3, 0), V(14.7, -8.8, 0)),  # 15
], False)
sketch10.addConstraint([
    Sketcher.Constraint("Coincident", 0, 2, 1, 1),
    Sketcher.Constraint("Coincident", 1, 2, 2, 1),
    Sketcher.Constraint("Coincident", 2, 2, 3, 1),
    Sketcher.Constraint("Coincident", 3, 2, 4, 1),
    Sketcher.Constraint("Coincident", 4, 2, 5, 1),
    Sketcher.Constraint("Coincident", 5, 2, 6, 1),
    Sketcher.Constraint("Coincident", 6, 2, 7, 1),
    Sketcher.Constraint("Coincident", 7, 2, 8, 1),
    Sketcher.Constraint("Coincident", 8, 2, 9, 1),
    Sketcher.Constraint("Coincident", 9, 2, 10, 1),
    Sketcher.Constraint("Coincident", 10, 2, 11, 1),
    Sketcher.Constraint("Coincident", 11, 2, 12, 1),
    Sketcher.Constraint("Coincident", 12, 2, 13, 1),
    Sketcher.Constraint("Coincident", 13, 2, 14, 1),
    Sketcher.Constraint("Coincident", 14, 2, 15, 1),
    Sketcher.Constraint("Coincident", 15, 2, 0, 1),
    Sketcher.Constraint("Horizontal", 0),
    Sketcher.Constraint("Vertical", 1),
    Sketcher.Constraint("Horizontal", 2),
    Sketcher.Constraint("Horizontal", 4),
    Sketcher.Constraint("Horizontal", 6),
    Sketcher.Constraint("Horizontal", 8),
    Sketcher.Constraint("Horizontal", 10),
    Sketcher.Constraint("Horizontal", 12),
    Sketcher.Constraint("Horizontal", 14),
    Sketcher.Constraint("Vertical", 15),
    Sketcher.Constraint("Equal", 3, 5),
    Sketcher.Constraint("Equal", 5, 7),
    Sketcher.Constraint("Equal", 7, 9),
    Sketcher.Constraint("Equal", 9, 11),
    Sketcher.Constraint("Equal", 11, 13),
    Sketcher.Constraint("Symmetric", 1, 2, 14, 2, -2),
    Sketcher.Constraint("Horizontal", 3, 3, 5, 3),
    Sketcher.Constraint("Horizontal", 5, 3, 7, 3),
    Sketcher.Constraint("Horizontal", 7, 3, 9, 3),
    Sketcher.Constraint("Horizontal", 9, 3, 11, 3),
    Sketcher.Constraint("Horizontal", 11, 3, 13, 3),
    Sketcher.Constraint("Horizontal", 2, 2, 3, 2),
    Sketcher.Constraint("Horizontal", 4, 2, 5, 2),
    Sketcher.Constraint("Horizontal", 6, 2, 7, 2),
    Sketcher.Constraint("Horizontal", 8, 2, 9, 2),
    Sketcher.Constraint("Horizontal", 10, 2, 11, 2),
    Sketcher.Constraint("Equal", 4, 6),
    Sketcher.Constraint("Equal", 6, 8),
    Sketcher.Constraint("Equal", 8, 10),
    Sketcher.Constraint("Equal", 10, 12),
    Sketcher.Constraint("Radius", 3, 2.25),
    Sketcher.Constraint("DistanceX", 0, 2, 0, 1, 29.4),
    Sketcher.Constraint("DistanceY", 1, 1, 1, 2, 2.5),
    Sketcher.Constraint("DistanceX", 5, 3, -1, 1, 7.3),
    Sketcher.Constraint("DistanceX", -1, 1, 9, 3, 2.4),
    Sketcher.Constraint("DistanceY", 0, 2, -1, 1, 8.8),
    Sketcher.Constraint("DistanceY", 3, 3, -1, 1, 5.65),
])
pocket3 = doc.addObject("PartDesign::Pocket", "Pocket002")
body.addObject(pocket3)
pocket3.Profile = sketch10
pocket3.Length = 1.5
pocket3.Reversed = True

# Sketch on XZ plane
sketch11 = doc.addObject("Sketcher::SketchObject", "Sketch010")
body.addObject(sketch11)
sketch11.AttachmentSupport = (doc.XZ_Plane, [""])
sketch11.MapMode = "FlatFace"
sketch11.addGeometry([
    Part.LineSegment(V(-13.2, -1.7, 0), V(-13.2, -0.5, 0)),  # 0
    Part.LineSegment(V(-13.2, -0.5, 0), V(-11.2, -0.5, 0)),  # 1
    Part.LineSegment(V(-11.2, -0.5, 0), V(-11.2, -1.7, 0)),  # 2
    Part.LineSegment(V(-11.2, -1.7, 0), V(-13.2, -1.7, 0)),  # 3
    Part.LineSegment(V(-8.3, -1.7, 0), V(-8.3, -0.5, 0)),  # 4
    Part.LineSegment(V(-8.3, -0.5, 0), V(-6.3, -0.5, 0)),  # 5
    Part.LineSegment(V(-6.3, -0.5, 0), V(-6.3, -1.7, 0)),  # 6
    Part.LineSegment(V(-6.3, -1.7, 0), V(-8.3, -1.7, 0)),  # 7
    Part.LineSegment(V(-3.5, -1.7, 0), V(-3.5, -0.5, 0)),  # 8
    Part.LineSegment(V(-3.5, -0.5, 0), V(-1.4, -0.5, 0)),  # 9
    Part.LineSegment(V(-1.4, -0.5, 0), V(-1.4, -1.7, 0)),  # 10
    Part.LineSegment(V(-1.4, -1.7, 0), V(-3.5, -1.7, 0)),  # 11
    Part.LineSegment(V(1.4, -1.7, 0), V(1.4, -0.5, 0)),  # 12
    Part.LineSegment(V(1.4, -0.5, 0), V(3.4, -0.5, 0)),  # 13
    Part.LineSegment(V(3.4, -0.5, 0), V(3.4, -1.7, 0)),  # 14
    Part.LineSegment(V(3.4, -1.7, 0), V(1.4, -1.7, 0)),  # 15
    Part.LineSegment(V(6.2, -1.7, 0), V(6.2, -0.5, 0)),  # 16
    Part.LineSegment(V(6.2, -0.5, 0), V(8.2, -0.5, 0)),  # 17
    Part.LineSegment(V(8.2, -0.5, 0), V(8.2, -1.7, 0)),  # 18
    Part.LineSegment(V(8.2, -1.7, 0), V(6.2, -1.7, 0)),  # 19
    Part.LineSegment(V(11.1, -1.7, 0), V(11.1, -0.5, 0)),  # 20
    Part.LineSegment(V(11.1, -0.5, 0), V(13.1, -0.5, 0)),  # 21
    Part.LineSegment(V(13.1, -0.5, 0), V(13.1, -1.7, 0)),  # 22
    Part.LineSegment(V(13.1, -1.7, 0), V(11.1, -1.7, 0)),  # 23
], False)
sketch11.addConstraint([
    Sketcher.Constraint("Coincident", 0, 2, 1, 1),
    Sketcher.Constraint("Coincident", 1, 2, 2, 1),
    Sketcher.Constraint("Coincident", 2, 2, 3, 1),
    Sketcher.Constraint("Coincident", 3, 2, 0, 1),
    Sketcher.Constraint("Coincident", 4, 2, 5, 1),
    Sketcher.Constraint("Coincident", 5, 2, 6, 1),
    Sketcher.Constraint("Coincident", 6, 2, 7, 1),
    Sketcher.Constraint("Coincident", 7, 2, 4, 1),
    Sketcher.Constraint("Coincident", 8, 2, 9, 1),
    Sketcher.Constraint("Coincident", 9, 2, 10, 1),
    Sketcher.Constraint("Coincident", 10, 2, 11, 1),
    Sketcher.Constraint("Coincident", 11, 2, 8, 1),
    Sketcher.Constraint("Coincident", 12, 2, 13, 1),
    Sketcher.Constraint("Coincident", 13, 2, 14, 1),
    Sketcher.Constraint("Coincident", 14, 2, 15, 1),
    Sketcher.Constraint("Coincident", 15, 2, 12, 1),
    Sketcher.Constraint("Coincident", 16, 2, 17, 1),
    Sketcher.Constraint("Coincident", 17, 2, 18, 1),
    Sketcher.Constraint("Coincident", 18, 2, 19, 1),
    Sketcher.Constraint("Coincident", 19, 2, 16, 1),
    Sketcher.Constraint("Coincident", 20, 2, 21, 1),
    Sketcher.Constraint("Coincident", 21, 2, 22, 1),
    Sketcher.Constraint("Coincident", 22, 2, 23, 1),
    Sketcher.Constraint("Coincident", 23, 2, 20, 1),
    Sketcher.Constraint("Vertical", 0),
    Sketcher.Constraint("Horizontal", 1),
    Sketcher.Constraint("Vertical", 2),
    Sketcher.Constraint("Horizontal", 3),
    Sketcher.Constraint("Vertical", 4),
    Sketcher.Constraint("Horizontal", 5),
    Sketcher.Constraint("Vertical", 6),
    Sketcher.Constraint("Horizontal", 7),
    Sketcher.Constraint("Vertical", 8),
    Sketcher.Constraint("Horizontal", 9),
    Sketcher.Constraint("Vertical", 10),
    Sketcher.Constraint("Horizontal", 11),
    Sketcher.Constraint("Vertical", 12),
    Sketcher.Constraint("Horizontal", 13),
    Sketcher.Constraint("Vertical", 14),
    Sketcher.Constraint("Horizontal", 15),
    Sketcher.Constraint("Vertical", 16),
    Sketcher.Constraint("Horizontal", 17),
    Sketcher.Constraint("Vertical", 18),
    Sketcher.Constraint("Horizontal", 19),
    Sketcher.Constraint("Vertical", 20),
    Sketcher.Constraint("Horizontal", 21),
    Sketcher.Constraint("Vertical", 22),
    Sketcher.Constraint("Horizontal", 23),
    Sketcher.Constraint("Horizontal", 1, 2, 4, 2),
    Sketcher.Constraint("Horizontal", 3, 2, 6, 2),
    Sketcher.Constraint("Horizontal", 5, 2, 8, 2),
    Sketcher.Constraint("Horizontal", 7, 2, 10, 2),
    Sketcher.Constraint("Horizontal", 9, 2, 12, 2),
    Sketcher.Constraint("Horizontal", 11, 2, 14, 2),
    Sketcher.Constraint("Horizontal", 13, 2, 16, 2),
    Sketcher.Constraint("Horizontal", 15, 2, 18, 2),
    Sketcher.Constraint("Horizontal", 17, 2, 20, 2),
    Sketcher.Constraint("Horizontal", 19, 2, 22, 2),
    Sketcher.Constraint("Equal", 3, 5),
    Sketcher.Constraint("Equal", 7, 9),
    Sketcher.Constraint("Equal", 11, 13),
    Sketcher.Constraint("Equal", 15, 17),
    Sketcher.Constraint("Equal", 19, 21),
    Sketcher.Constraint("DistanceX", 1, 1, 1, 2, 2.0),
    Sketcher.Constraint("DistanceY", 0, 1, 0, 2, 1.2),
    Sketcher.Constraint("DistanceY", 0, 2, -1, 1, 0.5),
    Sketcher.Constraint("DistanceX", 4, 2, -1, 1, 8.3),
    Sketcher.Constraint("DistanceX", -1, 1, 12, 2, 1.4),
    Sketcher.Constraint("DistanceX", -1, 1, 20, 2, 11.1),
    Sketcher.Constraint("DistanceX", 1, 2, 8, 2, 7.7),
    Sketcher.Constraint("DistanceX", 9, 2, 16, 2, 7.7),
    Sketcher.Constraint("DistanceX", 0, 2, -1, 1, 13.15),
])
pocket4 = doc.addObject("PartDesign::Pocket", "Pocket003")
body.addObject(pocket4)
pocket4.Profile = sketch11
pocket4.Length = 1
pocket4.Reversed = True

doc.recompute()
